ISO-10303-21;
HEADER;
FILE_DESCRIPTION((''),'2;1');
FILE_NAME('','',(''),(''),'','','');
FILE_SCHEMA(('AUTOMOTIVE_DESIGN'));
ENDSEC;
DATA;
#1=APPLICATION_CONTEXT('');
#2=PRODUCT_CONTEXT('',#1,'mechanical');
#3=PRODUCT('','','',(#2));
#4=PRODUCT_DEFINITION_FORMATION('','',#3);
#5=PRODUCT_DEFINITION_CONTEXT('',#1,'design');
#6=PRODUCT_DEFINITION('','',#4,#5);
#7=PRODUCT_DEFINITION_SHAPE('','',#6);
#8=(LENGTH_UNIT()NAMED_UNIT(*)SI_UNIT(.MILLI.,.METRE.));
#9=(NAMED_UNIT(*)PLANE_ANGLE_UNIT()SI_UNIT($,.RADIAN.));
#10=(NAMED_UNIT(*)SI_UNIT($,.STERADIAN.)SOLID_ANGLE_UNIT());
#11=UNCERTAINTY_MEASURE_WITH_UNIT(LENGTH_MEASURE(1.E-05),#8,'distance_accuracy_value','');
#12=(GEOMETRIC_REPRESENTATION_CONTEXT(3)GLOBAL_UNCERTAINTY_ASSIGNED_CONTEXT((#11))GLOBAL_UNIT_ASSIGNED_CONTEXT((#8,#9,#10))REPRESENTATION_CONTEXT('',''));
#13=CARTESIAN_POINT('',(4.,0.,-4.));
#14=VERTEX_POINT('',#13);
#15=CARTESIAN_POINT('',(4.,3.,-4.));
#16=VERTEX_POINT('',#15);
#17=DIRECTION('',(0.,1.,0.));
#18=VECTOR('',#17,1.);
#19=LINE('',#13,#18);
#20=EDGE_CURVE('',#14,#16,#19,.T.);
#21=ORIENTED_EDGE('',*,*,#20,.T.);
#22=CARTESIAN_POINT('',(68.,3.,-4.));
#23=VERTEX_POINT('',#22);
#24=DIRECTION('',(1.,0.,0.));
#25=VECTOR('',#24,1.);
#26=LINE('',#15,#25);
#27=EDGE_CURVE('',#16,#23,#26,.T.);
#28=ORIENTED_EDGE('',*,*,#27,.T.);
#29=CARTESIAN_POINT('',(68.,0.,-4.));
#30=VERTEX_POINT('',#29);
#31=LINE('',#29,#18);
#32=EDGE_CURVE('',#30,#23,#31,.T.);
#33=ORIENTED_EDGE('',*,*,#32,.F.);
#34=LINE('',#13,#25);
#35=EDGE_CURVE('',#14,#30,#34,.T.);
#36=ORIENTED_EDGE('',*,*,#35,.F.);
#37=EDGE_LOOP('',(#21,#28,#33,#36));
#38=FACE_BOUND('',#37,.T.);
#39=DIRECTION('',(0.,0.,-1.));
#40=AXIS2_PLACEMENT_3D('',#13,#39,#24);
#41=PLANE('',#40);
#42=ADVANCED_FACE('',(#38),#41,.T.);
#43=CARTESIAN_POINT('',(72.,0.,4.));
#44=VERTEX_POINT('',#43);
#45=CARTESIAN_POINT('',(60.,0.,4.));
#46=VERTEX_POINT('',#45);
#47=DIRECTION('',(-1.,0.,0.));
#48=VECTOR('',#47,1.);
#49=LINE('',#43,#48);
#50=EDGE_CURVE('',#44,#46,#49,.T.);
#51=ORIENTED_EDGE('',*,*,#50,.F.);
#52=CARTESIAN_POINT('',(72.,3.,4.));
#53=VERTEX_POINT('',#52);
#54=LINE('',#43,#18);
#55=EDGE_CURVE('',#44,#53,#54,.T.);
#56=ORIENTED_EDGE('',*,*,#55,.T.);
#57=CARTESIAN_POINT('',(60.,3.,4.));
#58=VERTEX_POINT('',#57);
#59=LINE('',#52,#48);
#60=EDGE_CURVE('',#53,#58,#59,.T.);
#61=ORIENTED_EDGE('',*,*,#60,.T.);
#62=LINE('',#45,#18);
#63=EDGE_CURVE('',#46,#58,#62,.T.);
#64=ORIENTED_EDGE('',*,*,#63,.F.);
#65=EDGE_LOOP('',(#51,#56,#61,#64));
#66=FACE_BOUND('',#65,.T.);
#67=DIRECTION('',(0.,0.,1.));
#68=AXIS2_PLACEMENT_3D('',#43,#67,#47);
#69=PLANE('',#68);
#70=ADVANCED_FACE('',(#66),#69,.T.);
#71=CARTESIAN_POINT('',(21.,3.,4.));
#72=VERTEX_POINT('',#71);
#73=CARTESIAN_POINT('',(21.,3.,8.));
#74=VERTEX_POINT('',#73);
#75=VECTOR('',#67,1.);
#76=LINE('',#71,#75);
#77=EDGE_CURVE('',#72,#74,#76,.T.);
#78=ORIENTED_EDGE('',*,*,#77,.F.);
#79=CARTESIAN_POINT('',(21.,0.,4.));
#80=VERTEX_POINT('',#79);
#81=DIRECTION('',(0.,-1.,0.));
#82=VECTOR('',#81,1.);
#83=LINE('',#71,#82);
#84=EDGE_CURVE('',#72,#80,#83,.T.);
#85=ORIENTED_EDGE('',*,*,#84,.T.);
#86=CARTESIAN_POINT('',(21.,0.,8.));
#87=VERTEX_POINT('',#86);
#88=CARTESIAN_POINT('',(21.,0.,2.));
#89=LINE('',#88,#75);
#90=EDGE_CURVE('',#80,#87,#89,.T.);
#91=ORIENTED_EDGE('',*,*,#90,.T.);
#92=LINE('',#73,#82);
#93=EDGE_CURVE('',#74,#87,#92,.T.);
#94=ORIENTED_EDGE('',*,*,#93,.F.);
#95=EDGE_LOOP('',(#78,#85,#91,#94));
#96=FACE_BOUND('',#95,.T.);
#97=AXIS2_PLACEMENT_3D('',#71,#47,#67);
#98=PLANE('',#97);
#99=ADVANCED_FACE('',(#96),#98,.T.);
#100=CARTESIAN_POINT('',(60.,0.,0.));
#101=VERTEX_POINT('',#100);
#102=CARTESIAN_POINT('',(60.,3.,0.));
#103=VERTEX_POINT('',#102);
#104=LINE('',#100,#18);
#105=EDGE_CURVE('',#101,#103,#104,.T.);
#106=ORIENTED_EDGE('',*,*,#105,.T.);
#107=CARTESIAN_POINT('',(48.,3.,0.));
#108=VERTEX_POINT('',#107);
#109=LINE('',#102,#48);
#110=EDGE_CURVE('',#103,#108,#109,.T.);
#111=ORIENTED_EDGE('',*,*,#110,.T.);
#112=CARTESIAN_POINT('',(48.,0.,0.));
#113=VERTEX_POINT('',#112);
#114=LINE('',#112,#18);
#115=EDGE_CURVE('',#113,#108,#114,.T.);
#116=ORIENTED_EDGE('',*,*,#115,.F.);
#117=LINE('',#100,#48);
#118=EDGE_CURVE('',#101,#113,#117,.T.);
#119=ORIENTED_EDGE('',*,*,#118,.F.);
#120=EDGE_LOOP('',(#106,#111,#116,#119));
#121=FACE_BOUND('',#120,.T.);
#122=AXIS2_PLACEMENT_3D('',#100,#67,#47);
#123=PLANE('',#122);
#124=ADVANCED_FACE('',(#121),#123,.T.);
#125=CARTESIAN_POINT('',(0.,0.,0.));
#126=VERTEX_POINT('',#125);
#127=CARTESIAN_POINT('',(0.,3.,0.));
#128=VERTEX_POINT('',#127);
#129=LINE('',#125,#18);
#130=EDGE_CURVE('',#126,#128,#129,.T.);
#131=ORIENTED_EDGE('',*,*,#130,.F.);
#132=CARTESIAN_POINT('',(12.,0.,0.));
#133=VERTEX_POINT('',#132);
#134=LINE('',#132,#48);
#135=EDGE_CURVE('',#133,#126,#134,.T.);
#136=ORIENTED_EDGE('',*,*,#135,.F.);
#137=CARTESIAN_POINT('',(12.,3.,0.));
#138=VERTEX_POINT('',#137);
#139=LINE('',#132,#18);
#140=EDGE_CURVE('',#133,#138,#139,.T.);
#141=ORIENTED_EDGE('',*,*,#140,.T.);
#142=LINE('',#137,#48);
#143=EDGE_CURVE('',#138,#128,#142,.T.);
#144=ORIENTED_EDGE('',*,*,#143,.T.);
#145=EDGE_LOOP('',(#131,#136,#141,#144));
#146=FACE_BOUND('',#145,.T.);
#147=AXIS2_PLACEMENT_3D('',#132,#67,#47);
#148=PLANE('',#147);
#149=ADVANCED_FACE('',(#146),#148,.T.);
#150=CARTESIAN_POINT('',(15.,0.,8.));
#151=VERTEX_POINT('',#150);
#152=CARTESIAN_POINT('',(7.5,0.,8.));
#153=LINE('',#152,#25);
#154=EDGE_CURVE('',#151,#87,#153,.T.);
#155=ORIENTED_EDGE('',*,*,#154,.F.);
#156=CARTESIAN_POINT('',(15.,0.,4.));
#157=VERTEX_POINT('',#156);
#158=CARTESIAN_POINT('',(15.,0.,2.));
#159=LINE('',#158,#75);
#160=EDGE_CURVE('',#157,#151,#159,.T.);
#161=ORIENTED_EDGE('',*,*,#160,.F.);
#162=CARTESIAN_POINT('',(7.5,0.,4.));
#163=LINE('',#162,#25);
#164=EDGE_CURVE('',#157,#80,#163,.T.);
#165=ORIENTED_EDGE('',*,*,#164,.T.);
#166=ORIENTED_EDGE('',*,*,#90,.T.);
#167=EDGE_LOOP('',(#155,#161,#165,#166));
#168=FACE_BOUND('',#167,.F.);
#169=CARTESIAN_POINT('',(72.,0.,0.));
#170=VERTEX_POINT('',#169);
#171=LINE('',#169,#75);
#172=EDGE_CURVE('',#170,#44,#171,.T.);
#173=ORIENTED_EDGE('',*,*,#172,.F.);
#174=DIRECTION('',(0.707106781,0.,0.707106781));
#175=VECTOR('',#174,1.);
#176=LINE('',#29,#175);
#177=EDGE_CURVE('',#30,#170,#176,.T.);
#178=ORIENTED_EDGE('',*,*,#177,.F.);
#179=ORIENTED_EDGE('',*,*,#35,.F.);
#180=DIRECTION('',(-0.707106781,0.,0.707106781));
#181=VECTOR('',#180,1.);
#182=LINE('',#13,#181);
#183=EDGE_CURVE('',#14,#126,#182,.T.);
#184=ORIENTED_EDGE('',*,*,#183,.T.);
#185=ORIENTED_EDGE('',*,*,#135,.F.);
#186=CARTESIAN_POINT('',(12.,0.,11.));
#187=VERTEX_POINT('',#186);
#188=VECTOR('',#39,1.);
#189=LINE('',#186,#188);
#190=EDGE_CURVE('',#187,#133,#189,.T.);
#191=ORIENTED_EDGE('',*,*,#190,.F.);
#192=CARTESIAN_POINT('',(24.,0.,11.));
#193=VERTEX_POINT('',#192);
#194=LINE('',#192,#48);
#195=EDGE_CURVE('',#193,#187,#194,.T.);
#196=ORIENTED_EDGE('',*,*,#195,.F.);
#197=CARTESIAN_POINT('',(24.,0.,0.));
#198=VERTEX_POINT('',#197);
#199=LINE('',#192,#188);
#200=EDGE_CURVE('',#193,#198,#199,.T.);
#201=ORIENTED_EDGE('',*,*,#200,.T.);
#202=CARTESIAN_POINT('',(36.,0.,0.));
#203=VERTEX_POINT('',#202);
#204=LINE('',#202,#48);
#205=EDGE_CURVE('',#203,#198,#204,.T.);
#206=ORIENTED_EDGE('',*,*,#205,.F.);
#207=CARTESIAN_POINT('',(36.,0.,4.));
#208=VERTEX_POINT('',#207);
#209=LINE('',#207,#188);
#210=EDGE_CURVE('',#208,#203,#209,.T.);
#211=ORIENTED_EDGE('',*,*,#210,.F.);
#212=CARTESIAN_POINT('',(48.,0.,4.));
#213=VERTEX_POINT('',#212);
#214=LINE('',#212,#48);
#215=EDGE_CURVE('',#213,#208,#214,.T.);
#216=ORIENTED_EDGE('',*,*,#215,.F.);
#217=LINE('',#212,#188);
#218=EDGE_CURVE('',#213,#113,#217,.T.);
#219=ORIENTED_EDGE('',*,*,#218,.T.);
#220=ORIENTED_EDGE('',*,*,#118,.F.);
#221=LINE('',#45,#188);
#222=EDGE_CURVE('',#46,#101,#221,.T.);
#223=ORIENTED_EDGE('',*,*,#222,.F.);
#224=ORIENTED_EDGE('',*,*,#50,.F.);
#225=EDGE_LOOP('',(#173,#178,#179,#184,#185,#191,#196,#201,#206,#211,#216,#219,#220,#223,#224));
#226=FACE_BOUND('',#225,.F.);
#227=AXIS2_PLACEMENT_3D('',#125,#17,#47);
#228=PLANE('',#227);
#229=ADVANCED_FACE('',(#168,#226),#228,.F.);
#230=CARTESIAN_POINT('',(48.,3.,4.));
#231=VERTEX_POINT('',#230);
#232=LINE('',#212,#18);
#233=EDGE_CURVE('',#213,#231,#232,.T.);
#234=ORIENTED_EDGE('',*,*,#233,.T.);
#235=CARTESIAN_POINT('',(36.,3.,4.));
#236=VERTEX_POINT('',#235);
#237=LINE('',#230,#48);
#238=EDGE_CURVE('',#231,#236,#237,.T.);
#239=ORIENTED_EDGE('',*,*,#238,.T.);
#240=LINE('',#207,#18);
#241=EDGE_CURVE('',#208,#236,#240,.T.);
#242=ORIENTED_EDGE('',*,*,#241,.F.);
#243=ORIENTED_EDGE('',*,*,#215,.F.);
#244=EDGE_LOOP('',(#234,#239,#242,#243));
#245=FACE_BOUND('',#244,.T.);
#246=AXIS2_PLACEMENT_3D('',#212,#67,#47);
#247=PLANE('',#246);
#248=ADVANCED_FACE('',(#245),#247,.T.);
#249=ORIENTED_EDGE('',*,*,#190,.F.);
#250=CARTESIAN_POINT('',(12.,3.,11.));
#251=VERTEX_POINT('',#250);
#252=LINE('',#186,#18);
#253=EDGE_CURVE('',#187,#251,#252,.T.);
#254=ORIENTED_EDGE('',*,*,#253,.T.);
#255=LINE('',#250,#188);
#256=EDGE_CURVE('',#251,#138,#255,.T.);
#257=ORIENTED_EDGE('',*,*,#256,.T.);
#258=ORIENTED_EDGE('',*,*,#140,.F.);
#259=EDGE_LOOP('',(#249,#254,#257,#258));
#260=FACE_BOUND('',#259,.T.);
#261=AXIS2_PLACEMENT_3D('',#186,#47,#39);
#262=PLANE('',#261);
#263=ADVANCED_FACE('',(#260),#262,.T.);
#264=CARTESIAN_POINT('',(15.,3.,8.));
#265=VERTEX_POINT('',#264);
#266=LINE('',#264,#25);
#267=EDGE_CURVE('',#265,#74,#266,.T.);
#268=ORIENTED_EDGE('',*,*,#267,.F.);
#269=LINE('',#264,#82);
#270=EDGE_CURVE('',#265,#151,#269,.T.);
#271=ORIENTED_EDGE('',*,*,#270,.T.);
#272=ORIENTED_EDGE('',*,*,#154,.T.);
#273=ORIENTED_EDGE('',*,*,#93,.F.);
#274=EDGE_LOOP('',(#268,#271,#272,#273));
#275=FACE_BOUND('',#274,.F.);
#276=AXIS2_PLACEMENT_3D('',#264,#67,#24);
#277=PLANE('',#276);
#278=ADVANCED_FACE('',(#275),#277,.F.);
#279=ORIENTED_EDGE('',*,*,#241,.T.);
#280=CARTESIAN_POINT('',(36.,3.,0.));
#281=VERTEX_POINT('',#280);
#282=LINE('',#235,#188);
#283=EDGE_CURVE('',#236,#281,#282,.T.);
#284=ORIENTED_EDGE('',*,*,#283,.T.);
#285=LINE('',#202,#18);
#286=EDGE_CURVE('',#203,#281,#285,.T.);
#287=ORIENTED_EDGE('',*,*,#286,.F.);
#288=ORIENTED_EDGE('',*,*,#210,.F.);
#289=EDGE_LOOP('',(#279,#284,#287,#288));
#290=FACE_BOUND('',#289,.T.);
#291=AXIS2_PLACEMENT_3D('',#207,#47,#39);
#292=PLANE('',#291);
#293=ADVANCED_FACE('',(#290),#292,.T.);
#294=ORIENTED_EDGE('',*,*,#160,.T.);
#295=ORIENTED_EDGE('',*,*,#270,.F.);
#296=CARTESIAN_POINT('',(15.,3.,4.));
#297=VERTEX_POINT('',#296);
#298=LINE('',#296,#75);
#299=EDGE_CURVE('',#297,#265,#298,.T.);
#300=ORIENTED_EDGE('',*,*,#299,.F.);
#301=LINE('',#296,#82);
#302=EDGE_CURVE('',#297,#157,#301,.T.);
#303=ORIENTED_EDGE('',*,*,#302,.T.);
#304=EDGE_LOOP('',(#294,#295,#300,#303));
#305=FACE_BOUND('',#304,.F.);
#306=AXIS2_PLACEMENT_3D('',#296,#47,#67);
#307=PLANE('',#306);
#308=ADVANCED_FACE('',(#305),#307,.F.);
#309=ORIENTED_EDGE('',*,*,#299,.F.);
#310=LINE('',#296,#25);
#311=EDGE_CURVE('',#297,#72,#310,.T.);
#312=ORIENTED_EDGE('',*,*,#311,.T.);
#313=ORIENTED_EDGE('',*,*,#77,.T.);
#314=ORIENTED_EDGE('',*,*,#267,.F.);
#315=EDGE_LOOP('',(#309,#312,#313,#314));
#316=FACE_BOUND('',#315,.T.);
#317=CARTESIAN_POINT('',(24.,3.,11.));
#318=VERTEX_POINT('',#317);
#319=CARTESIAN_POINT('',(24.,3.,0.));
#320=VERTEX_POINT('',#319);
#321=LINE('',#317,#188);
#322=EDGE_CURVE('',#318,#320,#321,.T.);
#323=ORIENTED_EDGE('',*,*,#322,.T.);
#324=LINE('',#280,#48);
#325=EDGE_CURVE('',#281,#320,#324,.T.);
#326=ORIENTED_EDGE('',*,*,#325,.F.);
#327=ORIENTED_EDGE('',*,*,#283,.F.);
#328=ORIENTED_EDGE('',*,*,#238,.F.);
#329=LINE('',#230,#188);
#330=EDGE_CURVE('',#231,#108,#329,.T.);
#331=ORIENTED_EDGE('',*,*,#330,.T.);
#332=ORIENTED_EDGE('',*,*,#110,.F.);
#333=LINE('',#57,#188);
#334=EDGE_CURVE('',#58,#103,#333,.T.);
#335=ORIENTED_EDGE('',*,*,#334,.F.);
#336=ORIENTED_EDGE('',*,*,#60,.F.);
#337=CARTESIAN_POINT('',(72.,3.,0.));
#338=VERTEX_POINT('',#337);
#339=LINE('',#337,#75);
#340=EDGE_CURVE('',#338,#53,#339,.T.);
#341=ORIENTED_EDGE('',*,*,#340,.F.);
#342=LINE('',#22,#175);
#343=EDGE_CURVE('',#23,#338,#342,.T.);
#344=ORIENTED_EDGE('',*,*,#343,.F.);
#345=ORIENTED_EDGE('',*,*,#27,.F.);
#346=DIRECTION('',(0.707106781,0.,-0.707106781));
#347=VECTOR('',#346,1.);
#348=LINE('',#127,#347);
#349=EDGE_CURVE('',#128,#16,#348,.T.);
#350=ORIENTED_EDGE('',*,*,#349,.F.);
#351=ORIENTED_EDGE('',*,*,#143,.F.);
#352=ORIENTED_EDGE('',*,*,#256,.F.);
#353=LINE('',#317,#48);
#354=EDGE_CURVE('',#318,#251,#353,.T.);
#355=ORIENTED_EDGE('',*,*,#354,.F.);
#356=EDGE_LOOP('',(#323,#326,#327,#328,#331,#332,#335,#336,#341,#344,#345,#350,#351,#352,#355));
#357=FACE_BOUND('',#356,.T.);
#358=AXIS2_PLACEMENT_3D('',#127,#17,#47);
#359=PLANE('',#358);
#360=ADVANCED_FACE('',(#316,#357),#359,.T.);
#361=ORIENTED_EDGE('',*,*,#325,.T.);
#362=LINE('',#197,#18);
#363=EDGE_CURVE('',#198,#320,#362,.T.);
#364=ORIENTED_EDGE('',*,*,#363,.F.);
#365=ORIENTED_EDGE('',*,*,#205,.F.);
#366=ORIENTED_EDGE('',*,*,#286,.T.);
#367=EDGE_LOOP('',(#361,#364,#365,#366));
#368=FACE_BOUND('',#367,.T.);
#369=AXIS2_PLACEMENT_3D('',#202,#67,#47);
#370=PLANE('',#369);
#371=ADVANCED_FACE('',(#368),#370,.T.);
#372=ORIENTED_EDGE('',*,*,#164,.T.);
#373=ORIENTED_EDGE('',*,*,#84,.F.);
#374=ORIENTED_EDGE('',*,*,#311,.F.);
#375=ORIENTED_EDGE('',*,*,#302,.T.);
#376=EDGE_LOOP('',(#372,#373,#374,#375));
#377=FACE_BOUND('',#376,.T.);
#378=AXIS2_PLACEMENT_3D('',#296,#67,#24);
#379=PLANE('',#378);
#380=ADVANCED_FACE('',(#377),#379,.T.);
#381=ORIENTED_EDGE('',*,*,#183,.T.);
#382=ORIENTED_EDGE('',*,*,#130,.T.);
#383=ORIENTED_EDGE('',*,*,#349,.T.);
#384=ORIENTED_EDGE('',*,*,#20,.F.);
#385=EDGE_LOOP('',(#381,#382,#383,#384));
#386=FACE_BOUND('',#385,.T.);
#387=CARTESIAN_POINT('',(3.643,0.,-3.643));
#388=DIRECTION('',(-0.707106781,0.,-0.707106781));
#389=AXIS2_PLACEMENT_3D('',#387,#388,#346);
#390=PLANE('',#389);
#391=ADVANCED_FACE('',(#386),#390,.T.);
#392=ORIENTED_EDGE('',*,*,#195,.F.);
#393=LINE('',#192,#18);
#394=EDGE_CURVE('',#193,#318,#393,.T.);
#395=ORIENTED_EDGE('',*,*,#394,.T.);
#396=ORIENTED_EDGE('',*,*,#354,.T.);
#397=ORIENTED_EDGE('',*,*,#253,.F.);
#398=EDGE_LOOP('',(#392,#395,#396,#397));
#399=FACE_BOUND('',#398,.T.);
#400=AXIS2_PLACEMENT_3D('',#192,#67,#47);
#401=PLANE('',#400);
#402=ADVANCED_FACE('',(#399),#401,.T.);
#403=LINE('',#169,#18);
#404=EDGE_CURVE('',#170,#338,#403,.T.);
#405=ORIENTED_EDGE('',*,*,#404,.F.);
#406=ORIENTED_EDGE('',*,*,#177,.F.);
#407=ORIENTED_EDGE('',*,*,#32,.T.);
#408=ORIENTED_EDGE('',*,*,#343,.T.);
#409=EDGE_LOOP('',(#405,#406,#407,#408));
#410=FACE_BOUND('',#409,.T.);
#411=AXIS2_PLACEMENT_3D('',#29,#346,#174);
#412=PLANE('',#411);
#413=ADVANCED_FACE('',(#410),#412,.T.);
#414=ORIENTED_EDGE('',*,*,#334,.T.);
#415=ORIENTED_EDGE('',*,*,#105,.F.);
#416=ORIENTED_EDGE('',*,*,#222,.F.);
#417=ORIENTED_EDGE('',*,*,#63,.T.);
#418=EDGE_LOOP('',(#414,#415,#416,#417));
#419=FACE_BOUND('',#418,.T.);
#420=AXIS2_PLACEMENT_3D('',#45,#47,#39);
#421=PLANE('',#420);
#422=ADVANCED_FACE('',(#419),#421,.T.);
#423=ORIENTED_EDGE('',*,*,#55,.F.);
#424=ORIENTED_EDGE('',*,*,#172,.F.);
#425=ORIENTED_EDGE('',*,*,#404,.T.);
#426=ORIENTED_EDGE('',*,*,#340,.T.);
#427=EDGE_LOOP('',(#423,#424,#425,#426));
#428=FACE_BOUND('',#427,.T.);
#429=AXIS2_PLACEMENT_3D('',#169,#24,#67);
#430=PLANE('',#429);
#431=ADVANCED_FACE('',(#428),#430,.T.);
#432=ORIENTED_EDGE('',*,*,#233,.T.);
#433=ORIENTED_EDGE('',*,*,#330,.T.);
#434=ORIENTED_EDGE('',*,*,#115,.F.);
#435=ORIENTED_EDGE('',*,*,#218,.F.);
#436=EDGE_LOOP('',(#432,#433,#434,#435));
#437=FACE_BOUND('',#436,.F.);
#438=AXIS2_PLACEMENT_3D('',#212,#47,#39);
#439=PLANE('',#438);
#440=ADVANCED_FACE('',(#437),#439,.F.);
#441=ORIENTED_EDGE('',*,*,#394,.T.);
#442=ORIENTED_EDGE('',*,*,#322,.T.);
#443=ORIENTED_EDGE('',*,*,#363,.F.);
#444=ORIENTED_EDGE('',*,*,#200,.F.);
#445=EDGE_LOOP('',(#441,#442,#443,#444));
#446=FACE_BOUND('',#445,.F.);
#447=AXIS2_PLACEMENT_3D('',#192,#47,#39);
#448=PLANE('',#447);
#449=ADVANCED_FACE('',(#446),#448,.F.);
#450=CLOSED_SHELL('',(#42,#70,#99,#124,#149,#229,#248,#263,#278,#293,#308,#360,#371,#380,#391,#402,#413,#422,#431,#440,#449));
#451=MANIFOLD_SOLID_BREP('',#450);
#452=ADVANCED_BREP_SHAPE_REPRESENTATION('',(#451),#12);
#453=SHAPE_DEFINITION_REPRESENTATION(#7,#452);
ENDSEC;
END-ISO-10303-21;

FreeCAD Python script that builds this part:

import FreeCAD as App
import Part
import Sketcher
from FreeCAD import Vector
Q = App.Units.Quantity


def add_polygon(sketch, points):
    """Adds a closed chain of lines whose ends are joined by coincident constraints."""
    first, n = sketch.GeometryCount, len(points)
    for a, b in zip(points, points[1:] + points[:1]):
        sketch.addGeometry(Part.LineSegment(App.Vector(*a, 0), App.Vector(*b, 0)), False)
    for i in range(n):
        sketch.addConstraint(Sketcher.Constraint("Coincident", first + i, 2, first + (i + 1) % n, 1))

doc = App.newDocument("Part")
body = doc.addObject("PartDesign::Body", "Body")

sketch1 = doc.addObject("Sketcher::SketchObject", "Sketch")
body.addObject(sketch1)
sketch1.AttachmentSupport = (doc.XZ_Plane, [""])
sketch1.MapMode = "FlatFace"
add_polygon(sketch1, [(68, -4), (4, -4), (0, 0), (12, 0), (12, 11), (24, 11), (24, 0), (36, 0), (36, 4), (48, 4), (48, 0), (60, 0), (60, 4), (72, 4), (72, 0)])
sketch1.addConstraint([
    Sketcher.Constraint("Horizontal", 0),
    Sketcher.Constraint("Horizontal", 2),
    Sketcher.Constraint("Vertical", 3),
    Sketcher.Constraint("Horizontal", 4),
    Sketcher.Constraint("Vertical", 5),
    Sketcher.Constraint("Horizontal", 6),
    Sketcher.Constraint("Vertical", 7),
    Sketcher.Constraint("Horizontal", 8),
    Sketcher.Constraint("Vertical", 9),
    Sketcher.Constraint("Horizontal", 10),
    Sketcher.Constraint("Vertical", 11),
    Sketcher.Constraint("Horizontal", 12),
    Sketcher.Constraint("Vertical", 13),
    Sketcher.Constraint("Coincident", 1, 2, -1, 1),
    Sketcher.Constraint("PointOnObject", 5, 2, -1),
    Sketcher.Constraint("PointOnObject", 9, 2, -1),
    Sketcher.Constraint("PointOnObject", 13, 2, -1),
    Sketcher.Constraint("Perpendicular", 1, 14),
    Sketcher.Constraint("Horizontal", 8, 2, 11, 2),
    Sketcher.Constraint("Equal", 2, 4),
    Sketcher.Constraint("Equal", 4, 6),
    Sketcher.Constraint("Equal", 6, 8),
    Sketcher.Constraint("Equal", 8, 10),
    Sketcher.Constraint("Equal", 10, 12),
    Sketcher.Constraint("Equal", 1, 14),
    Sketcher.Constraint("DistanceX", 2, 1, 2, 2, Q("12 mm")),
    Sketcher.Constraint("DistanceY", 3, 1, 3, 2, Q("11 mm")),
    Sketcher.Constraint("DistanceY", 7, 1, 7, 2, Q("4 mm")),
    Sketcher.Constraint("DistanceX", -1, 1, 0, 2, Q("4 mm")),
])
pad1 = doc.addObject("PartDesign::Pad", "Pad")
body.addObject(pad1)
pad1.Profile = sketch1
pad1.Length = 3
pad1.Reversed = True

sketch2 = doc.addObject("Sketcher::SketchObject", "Sketch001")
body.addObject(sketch2)
sketch2.AttachmentSupport = (doc.XZ_Plane, [""])
sketch2.MapMode = "FlatFace"
sketch2.AttachmentOffset = App.Placement(Vector(0, 0, -3), App.Rotation())
add_polygon(sketch2, [(21, 4), (15, 4), (15, 8), (21, 8)])
sketch2.addConstraint([
    Sketcher.Constraint("Horizontal", 0),
    Sketcher.Constraint("Vertical", 1),
    Sketcher.Constraint("Horizontal", 2),
    Sketcher.Constraint("Vertical", 3),
    Sketcher.Constraint("DistanceY", 1, 1, 1, 2, Q("4 mm")),
    Sketcher.Constraint("DistanceY", -1, 1, 0, 2, Q("4 mm")),
    Sketcher.Constraint("DistanceX", 0, 2, 0, 1, Q("6 mm")),
    Sketcher.Constraint("DistanceX", -1, 1, 0, 2, Q("15 mm")),
])
pocket1 = doc.addObject("PartDesign::Pocket", "Pocket")
body.addObject(pocket1)
pocket1.Profile = sketch2
pocket1.Length = 10
pocket1.Reversed = True

doc.recompute()
